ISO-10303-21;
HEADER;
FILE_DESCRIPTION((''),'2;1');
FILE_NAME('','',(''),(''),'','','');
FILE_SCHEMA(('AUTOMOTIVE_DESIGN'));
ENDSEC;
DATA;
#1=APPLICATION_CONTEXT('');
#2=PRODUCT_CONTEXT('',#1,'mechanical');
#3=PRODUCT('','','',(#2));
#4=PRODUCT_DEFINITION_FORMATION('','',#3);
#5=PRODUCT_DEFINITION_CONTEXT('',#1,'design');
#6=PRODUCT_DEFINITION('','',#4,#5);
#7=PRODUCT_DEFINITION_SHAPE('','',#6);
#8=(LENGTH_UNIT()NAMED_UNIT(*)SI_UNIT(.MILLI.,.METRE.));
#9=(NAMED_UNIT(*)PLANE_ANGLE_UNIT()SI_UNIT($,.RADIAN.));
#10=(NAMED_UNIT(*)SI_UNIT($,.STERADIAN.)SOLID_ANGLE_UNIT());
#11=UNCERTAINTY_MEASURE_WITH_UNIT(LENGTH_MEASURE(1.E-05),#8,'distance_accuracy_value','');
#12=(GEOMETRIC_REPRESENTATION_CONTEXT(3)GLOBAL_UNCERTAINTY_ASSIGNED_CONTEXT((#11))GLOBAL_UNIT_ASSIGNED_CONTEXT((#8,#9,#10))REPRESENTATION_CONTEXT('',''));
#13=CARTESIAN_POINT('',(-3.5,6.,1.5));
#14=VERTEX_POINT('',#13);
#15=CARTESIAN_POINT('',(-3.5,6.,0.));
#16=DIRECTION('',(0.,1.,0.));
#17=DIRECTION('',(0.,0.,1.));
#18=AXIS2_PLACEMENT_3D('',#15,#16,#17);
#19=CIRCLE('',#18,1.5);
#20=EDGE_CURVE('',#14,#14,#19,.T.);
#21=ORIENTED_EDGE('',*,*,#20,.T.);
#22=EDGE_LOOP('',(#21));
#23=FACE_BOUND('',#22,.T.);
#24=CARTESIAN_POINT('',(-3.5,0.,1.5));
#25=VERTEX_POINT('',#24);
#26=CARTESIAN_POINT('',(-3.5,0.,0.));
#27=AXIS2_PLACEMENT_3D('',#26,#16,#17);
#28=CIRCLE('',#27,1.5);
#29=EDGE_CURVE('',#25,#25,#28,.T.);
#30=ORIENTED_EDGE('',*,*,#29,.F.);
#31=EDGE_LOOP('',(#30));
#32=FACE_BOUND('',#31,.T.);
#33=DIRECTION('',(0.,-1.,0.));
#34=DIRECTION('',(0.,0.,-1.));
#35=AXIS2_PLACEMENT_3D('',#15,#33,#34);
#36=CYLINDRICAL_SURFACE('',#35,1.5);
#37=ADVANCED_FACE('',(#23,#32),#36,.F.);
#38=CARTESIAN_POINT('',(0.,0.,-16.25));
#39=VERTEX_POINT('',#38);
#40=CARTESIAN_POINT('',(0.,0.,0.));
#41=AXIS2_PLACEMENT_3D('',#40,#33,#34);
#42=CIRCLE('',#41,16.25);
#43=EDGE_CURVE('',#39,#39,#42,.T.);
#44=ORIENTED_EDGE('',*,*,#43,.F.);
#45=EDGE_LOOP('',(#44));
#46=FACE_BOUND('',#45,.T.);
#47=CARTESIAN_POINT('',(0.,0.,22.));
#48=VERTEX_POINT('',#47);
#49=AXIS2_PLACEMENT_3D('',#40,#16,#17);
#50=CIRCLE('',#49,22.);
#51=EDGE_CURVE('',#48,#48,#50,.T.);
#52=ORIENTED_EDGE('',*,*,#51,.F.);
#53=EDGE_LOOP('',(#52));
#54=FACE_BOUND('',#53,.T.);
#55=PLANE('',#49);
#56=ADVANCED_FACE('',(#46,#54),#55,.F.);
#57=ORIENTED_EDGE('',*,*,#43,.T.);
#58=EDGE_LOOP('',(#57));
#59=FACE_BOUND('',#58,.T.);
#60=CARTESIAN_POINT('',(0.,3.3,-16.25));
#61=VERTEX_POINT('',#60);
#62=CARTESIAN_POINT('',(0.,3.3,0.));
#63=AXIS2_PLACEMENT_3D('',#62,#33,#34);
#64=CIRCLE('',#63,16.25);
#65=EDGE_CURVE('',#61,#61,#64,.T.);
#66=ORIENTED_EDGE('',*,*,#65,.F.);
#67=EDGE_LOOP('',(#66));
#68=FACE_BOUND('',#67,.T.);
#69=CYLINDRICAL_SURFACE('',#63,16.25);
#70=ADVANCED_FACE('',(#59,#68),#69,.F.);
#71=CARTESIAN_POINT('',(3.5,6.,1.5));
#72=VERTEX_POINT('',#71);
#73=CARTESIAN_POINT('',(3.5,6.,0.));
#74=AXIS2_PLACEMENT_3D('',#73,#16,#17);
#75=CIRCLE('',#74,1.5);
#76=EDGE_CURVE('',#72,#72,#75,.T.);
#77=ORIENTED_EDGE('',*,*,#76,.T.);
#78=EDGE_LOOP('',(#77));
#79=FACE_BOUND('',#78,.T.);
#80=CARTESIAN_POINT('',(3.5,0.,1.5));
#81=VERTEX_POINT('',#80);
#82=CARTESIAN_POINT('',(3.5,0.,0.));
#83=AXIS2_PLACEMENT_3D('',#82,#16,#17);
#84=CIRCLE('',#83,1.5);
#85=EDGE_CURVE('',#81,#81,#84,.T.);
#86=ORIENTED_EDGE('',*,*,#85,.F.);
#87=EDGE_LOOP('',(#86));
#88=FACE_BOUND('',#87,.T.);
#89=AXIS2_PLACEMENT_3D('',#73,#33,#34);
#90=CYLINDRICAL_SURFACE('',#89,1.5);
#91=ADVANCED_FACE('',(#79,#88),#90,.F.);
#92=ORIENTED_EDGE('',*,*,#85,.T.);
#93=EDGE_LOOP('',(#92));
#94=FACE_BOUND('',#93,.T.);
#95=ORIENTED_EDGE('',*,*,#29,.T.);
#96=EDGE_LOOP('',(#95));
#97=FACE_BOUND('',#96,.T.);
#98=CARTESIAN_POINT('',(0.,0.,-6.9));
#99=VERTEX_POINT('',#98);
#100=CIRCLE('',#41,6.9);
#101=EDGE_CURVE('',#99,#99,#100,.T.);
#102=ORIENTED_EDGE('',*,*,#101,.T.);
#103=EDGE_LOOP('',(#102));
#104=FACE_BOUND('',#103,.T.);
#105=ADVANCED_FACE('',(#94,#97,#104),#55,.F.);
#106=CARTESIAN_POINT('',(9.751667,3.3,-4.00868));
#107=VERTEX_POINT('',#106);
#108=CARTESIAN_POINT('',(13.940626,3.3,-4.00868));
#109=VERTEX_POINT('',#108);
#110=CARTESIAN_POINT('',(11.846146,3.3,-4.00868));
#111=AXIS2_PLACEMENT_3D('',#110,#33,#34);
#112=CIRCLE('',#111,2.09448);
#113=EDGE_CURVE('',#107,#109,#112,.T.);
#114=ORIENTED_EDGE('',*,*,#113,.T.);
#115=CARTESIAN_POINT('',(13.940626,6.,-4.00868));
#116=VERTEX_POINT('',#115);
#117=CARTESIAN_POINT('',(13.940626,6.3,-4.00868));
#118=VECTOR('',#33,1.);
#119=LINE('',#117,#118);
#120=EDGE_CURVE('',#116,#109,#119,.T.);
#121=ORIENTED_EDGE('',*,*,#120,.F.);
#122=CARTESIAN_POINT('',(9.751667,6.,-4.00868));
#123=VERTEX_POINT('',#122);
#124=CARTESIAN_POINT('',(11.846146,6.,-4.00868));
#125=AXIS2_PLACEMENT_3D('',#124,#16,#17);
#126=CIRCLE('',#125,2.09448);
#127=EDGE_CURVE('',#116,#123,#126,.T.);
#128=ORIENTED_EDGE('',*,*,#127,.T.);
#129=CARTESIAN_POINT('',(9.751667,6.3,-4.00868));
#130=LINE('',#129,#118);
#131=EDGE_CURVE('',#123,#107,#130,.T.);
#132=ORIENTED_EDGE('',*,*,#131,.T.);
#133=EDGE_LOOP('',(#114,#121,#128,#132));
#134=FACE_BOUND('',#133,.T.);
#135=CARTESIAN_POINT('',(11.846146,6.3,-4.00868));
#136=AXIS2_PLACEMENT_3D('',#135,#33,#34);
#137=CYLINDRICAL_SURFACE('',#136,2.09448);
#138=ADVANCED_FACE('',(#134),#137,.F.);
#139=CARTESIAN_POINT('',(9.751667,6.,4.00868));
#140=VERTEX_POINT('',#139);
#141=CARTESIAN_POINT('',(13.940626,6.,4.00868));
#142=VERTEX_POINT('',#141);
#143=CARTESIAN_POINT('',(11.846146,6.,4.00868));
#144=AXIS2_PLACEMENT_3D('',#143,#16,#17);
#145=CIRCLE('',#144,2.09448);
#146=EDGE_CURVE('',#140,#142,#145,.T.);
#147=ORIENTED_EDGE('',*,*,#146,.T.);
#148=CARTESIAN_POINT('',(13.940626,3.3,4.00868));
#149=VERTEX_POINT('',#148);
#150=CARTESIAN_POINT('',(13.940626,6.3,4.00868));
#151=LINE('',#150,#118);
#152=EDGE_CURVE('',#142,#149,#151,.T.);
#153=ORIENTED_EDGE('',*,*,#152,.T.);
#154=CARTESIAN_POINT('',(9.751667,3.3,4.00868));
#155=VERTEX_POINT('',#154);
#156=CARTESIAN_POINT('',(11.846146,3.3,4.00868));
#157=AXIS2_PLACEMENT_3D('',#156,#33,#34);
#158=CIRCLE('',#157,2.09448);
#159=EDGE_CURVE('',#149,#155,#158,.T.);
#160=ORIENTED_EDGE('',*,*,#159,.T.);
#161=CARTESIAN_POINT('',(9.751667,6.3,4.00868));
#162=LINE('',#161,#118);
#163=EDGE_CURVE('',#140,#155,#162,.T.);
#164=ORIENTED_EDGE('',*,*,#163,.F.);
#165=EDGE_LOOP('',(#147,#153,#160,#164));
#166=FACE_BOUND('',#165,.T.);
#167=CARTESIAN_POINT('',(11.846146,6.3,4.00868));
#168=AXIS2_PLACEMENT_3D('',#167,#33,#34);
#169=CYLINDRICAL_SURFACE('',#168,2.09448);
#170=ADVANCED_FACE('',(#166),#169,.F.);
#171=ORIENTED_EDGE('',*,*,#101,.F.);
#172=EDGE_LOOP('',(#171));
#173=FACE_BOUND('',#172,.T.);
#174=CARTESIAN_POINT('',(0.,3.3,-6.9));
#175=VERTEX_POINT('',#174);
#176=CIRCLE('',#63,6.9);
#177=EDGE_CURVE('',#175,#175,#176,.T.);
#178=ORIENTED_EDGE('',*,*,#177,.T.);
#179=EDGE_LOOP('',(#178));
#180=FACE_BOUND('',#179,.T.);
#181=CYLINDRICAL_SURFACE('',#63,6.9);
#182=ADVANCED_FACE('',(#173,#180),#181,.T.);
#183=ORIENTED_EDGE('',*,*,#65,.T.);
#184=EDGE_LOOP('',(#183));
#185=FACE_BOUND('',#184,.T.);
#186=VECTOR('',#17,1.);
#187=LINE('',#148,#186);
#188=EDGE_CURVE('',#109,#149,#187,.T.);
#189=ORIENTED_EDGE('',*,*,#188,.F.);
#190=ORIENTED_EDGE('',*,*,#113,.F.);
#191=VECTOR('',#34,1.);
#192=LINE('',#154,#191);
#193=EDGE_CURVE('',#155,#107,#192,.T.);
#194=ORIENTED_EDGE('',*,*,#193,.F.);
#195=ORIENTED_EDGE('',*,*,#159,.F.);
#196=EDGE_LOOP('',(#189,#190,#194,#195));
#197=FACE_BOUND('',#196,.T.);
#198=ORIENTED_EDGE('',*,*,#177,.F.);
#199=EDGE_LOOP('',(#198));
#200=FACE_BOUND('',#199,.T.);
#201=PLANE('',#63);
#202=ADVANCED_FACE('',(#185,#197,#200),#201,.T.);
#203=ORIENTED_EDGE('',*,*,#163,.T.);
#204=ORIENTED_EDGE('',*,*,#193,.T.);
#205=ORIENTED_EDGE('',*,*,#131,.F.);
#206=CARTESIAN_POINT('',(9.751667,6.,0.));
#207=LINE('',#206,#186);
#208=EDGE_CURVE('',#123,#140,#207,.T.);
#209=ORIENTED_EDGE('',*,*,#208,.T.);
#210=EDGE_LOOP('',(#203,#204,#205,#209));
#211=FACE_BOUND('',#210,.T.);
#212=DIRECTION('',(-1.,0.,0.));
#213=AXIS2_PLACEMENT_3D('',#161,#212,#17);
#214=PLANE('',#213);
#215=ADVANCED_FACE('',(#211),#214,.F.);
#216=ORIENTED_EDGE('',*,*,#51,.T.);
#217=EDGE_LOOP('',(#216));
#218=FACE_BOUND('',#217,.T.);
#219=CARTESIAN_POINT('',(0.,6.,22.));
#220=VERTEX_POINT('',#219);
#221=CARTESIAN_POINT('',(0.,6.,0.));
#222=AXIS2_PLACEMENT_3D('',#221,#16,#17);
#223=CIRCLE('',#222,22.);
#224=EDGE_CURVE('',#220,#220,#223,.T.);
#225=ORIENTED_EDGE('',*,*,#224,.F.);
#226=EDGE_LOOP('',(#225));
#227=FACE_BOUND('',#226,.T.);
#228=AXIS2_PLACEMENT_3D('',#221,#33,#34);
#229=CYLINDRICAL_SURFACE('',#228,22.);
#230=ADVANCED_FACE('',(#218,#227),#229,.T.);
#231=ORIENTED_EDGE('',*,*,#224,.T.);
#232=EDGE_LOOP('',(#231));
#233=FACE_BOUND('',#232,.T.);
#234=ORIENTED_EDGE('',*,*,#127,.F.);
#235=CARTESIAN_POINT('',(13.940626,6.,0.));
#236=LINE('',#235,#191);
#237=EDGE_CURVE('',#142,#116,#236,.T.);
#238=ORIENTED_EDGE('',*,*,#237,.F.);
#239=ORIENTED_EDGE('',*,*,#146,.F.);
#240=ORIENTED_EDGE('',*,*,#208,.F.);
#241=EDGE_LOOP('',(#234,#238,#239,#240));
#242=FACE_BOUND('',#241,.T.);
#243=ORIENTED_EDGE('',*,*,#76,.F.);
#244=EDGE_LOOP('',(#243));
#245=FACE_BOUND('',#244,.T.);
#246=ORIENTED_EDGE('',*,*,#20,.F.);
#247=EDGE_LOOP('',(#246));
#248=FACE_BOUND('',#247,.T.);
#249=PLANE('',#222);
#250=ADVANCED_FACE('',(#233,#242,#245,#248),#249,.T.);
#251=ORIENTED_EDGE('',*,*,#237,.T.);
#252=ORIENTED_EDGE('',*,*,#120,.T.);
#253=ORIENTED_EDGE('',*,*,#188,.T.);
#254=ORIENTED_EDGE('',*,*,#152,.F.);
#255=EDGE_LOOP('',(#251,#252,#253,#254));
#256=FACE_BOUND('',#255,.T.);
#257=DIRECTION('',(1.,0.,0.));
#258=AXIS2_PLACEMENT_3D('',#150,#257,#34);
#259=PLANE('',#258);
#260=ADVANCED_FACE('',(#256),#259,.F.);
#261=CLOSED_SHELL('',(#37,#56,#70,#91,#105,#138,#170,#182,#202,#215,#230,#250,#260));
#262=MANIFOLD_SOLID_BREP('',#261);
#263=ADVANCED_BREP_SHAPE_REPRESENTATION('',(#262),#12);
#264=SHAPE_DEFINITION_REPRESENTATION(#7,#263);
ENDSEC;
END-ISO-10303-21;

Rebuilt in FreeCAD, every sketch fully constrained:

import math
import FreeCAD as App
import Part
import Sketcher

doc = App.newDocument("Part")
params = doc.addObject("Spreadsheet::Sheet", "Params")
for row, (alias, value) in enumerate([
    ("sketch1_diameter", "44 mm"),
    ("sketch1_diameter2", "3 mm"),
    ("pad1_length", "6 mm"),
    ("sketch2_diameter", "32.5 mm"),
    ("sketch2_diameter2", "13.8 mm"),
    ("pocket1_length", "3.3 mm"),
    ("pocket2_length", "3 mm"),
], start=1):
    params.set(f"A{row}", alias)
    params.set(f"B{row}", "=" + value)
    params.setAlias(f"B{row}", alias)

body = doc.addObject("PartDesign::Body", "Body")

sketch1 = body.newObject("Sketcher::SketchObject", "Sketch")
sketch1.AttachmentSupport = (doc.getObject("XZ_Plane"), [""])
sketch1.MapMode = "FlatFace"
sketch1.addGeometry(Part.Circle(App.Vector(0, 0, 0), App.Vector(0, 0, 1), 22), False)
sketch1.addGeometry(Part.Circle(App.Vector(-3.5, 0, 0), App.Vector(0, 0, 1), 1.5), False)
sketch1.addGeometry(Part.Circle(App.Vector(3.5, 0, 0), App.Vector(0, 0, 1), 1.5), False)
sketch1.addConstraint(Sketcher.Constraint("Coincident", 0, 3, -1, 1))
sketch1.addConstraint(Sketcher.Constraint("Equal", 1, 2))
sketch1.addConstraint(Sketcher.Constraint("Symmetric", 1, 3, 2, 3, -1, 1))
sketch1.addConstraint(Sketcher.Constraint("PointOnObject", 1, 3, -1))
sketch1.addConstraint(Sketcher.Constraint("Diameter", 0, 44.0))
sketch1.addConstraint(Sketcher.Constraint("Diameter", 1, 3.0))
sketch1.addConstraint(Sketcher.Constraint("DistanceX", 1, 3, 2, 3, 7.0))
sketch1.setExpression("Constraints[4]", "Params.sketch1_diameter")
sketch1.setExpression("Constraints[5]", "Params.sketch1_diameter2")
pad1 = body.newObject("PartDesign::Pad", "Pad")
pad1.Profile = sketch1
pad1.setExpression("Length", "Params.pad1_length")
pad1.Reversed = True

sketch2 = body.newObject("Sketcher::SketchObject", "Sketch001")
sketch2.AttachmentSupport = (doc.getObject("XZ_Plane"), [""])
sketch2.MapMode = "FlatFace"
sketch2.addGeometry(Part.Circle(App.Vector(0, 0, 0), App.Vector(0, 0, 1), 16.25), False)
sketch2.addGeometry(Part.Circle(App.Vector(0, 0, 0), App.Vector(0, 0, 1), 6.9), False)
sketch2.addConstraint(Sketcher.Constraint("Coincident", 0, 3, -1, 1))
sketch2.addConstraint(Sketcher.Constraint("Coincident", 1, 3, -1, 1))
sketch2.addConstraint(Sketcher.Constraint("Diameter", 0, 32.5))
sketch2.addConstraint(Sketcher.Constraint("Diameter", 1, 13.8))
sketch2.setExpression("Constraints[2]", "Params.sketch2_diameter")
sketch2.setExpression("Constraints[3]", "Params.sketch2_diameter2")
pocket1 = body.newObject("PartDesign::Pocket", "Pocket")
pocket1.Profile = sketch2
pocket1.setExpression("Length", "Params.pocket1_length")

sketch3 = body.newObject("Sketcher::SketchObject", "Sketch002")
sketch3.AttachmentSupport = (doc.getObject("XZ_Plane"), [""])
sketch3.MapMode = "FlatFace"
sketch3.AttachmentOffset = App.Placement(App.Vector(0, 0, -3.3), App.Rotation())
sketch3.addGeometry(Part.LineSegment(App.Vector(13.940626, -4.00868, 0), App.Vector(13.940626, 4.00868, 0)), False)
sketch3.addGeometry(Part.ArcOfCircle(Part.Circle(App.Vector(11.846146, 4.00868, 0), App.Vector(0, 0, 1), 2.09448), math.radians(0), math.radians(180)), False)
sketch3.addGeometry(Part.LineSegment(App.Vector(9.751667, 4.00868, 0), App.Vector(9.751667, -4.00868, 0)), False)
sketch3.addGeometry(Part.ArcOfCircle(Part.Circle(App.Vector(11.846146, -4.00868, 0), App.Vector(0, 0, 1), 2.09448), math.radians(180), math.radians(360)), False)
sketch3.addConstraint(Sketcher.Constraint("Tangent", 0, 2, 1, 1))
sketch3.addConstraint(Sketcher.Constraint("Tangent", 1, 2, 2, 1))
sketch3.addConstraint(Sketcher.Constraint("Tangent", 2, 2, 3, 1))
sketch3.addConstraint(Sketcher.Constraint("Tangent", 3, 2, 0, 1))
sketch3.addConstraint(Sketcher.Constraint("Vertical", 0))
sketch3.addConstraint(Sketcher.Constraint("Vertical", 2))
sketch3.addConstraint(Sketcher.Constraint("Radius", 1, 2.09448))
sketch3.addConstraint(Sketcher.Constraint("DistanceY", 0, 1, 0, 2, 8.017359))
sketch3.addConstraint(Sketcher.Constraint("DistanceY", -1, 1, 1, 3, 4.00868))
sketch3.addConstraint(Sketcher.Constraint("DistanceX", -1, 1, 1, 3, 11.846146))
pocket2 = body.newObject("PartDesign::Pocket", "Pocket001")
pocket2.Profile = sketch3
pocket2.setExpression("Length", "Params.pocket2_length")

doc.recompute()
